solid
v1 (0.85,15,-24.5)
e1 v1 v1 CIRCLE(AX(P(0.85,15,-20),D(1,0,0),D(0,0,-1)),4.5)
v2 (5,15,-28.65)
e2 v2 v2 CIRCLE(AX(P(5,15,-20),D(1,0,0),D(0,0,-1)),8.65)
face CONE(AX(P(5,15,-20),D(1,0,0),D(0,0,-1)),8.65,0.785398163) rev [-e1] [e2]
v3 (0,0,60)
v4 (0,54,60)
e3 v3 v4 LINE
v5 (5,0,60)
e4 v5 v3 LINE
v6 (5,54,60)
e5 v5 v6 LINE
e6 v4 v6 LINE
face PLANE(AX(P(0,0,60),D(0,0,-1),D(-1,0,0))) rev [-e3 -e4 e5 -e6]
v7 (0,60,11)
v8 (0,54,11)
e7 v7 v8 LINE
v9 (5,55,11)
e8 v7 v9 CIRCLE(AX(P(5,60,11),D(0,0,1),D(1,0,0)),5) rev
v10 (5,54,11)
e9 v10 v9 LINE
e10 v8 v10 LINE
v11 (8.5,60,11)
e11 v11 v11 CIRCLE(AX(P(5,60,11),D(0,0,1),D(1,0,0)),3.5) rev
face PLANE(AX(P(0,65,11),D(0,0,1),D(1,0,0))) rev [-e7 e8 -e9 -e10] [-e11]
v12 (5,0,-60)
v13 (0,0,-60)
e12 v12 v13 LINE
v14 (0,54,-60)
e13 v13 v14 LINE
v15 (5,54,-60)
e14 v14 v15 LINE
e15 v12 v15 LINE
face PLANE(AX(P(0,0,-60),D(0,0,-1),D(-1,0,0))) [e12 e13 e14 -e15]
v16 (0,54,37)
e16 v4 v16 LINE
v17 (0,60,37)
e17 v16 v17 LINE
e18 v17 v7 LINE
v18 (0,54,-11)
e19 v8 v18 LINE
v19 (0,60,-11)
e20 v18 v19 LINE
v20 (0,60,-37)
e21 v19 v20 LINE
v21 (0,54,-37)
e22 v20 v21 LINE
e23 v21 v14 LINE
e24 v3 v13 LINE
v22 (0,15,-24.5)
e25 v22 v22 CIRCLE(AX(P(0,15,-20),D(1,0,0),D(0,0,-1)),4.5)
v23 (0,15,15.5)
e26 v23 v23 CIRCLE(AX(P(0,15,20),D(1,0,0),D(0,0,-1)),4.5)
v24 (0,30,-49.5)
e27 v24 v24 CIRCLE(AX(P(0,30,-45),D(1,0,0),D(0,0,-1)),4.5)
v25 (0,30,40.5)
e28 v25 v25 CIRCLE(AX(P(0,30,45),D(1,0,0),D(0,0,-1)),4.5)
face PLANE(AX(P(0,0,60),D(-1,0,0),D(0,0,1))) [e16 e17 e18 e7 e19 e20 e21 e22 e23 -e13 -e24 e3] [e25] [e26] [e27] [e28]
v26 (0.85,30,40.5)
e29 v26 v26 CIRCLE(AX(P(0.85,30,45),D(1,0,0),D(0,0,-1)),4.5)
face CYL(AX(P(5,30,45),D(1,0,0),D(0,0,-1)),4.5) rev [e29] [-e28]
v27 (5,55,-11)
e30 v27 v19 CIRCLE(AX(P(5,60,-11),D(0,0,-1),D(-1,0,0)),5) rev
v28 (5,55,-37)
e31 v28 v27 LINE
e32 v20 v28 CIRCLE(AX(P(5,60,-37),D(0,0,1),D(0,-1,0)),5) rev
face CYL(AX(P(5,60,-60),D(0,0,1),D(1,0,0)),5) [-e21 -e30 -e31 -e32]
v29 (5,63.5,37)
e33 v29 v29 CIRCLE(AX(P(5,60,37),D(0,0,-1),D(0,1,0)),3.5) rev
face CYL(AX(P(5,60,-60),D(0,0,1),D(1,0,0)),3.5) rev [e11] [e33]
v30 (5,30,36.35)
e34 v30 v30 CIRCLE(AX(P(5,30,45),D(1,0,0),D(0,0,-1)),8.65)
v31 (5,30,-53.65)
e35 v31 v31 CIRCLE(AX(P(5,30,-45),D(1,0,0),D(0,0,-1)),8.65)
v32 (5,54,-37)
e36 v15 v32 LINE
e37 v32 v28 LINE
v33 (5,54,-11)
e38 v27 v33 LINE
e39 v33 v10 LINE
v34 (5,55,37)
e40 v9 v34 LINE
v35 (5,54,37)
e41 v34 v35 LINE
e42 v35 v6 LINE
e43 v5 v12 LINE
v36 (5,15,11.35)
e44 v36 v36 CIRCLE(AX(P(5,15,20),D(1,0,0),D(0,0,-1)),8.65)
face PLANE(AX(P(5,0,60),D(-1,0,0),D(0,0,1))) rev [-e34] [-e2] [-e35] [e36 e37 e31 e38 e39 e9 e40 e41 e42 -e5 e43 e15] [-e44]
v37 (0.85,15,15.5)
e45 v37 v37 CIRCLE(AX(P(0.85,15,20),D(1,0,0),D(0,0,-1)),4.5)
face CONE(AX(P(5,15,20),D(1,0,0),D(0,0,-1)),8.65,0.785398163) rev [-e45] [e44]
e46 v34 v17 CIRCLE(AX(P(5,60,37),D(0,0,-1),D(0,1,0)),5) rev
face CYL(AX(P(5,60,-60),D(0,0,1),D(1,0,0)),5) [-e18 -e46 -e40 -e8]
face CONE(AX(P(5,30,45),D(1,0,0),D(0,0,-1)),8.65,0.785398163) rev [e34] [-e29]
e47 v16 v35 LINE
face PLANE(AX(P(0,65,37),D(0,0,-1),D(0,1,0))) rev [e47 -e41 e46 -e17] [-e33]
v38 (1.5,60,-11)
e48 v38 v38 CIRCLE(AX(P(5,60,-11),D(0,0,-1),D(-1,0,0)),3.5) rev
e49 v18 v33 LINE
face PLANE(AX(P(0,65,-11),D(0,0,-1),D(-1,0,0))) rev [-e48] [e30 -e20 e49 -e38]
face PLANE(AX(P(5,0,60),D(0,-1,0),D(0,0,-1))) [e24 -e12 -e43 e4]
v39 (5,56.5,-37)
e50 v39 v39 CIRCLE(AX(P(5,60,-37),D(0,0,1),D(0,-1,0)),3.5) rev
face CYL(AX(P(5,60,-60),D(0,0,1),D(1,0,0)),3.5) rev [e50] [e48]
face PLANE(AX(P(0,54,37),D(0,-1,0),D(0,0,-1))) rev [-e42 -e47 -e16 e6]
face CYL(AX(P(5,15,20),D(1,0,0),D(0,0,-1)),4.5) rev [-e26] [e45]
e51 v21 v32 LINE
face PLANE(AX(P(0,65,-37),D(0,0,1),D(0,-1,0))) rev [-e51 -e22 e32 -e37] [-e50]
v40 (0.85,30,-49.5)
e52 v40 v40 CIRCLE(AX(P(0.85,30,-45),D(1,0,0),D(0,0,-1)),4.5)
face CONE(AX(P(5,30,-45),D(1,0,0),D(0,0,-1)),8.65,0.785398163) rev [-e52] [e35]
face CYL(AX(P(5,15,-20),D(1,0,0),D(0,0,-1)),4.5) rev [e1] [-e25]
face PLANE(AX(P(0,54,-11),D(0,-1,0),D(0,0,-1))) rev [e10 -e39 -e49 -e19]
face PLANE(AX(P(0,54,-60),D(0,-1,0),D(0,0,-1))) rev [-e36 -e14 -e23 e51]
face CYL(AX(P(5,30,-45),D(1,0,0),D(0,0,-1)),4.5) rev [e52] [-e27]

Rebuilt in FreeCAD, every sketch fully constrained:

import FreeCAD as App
import Part
import Sketcher

V = App.Vector
Q = App.Units.Quantity


def add_polygon(sketch, points):
    """Adds a closed chain of lines whose ends are joined by coincident constraints."""
    first, n = sketch.GeometryCount, len(points)
    for a, b in zip(points, points[1:] + points[:1]):
        sketch.addGeometry(Part.LineSegment(App.Vector(*a, 0), App.Vector(*b, 0)), False)
    for i in range(n):
        sketch.addConstraint(Sketcher.Constraint("Coincident", first + i, 2, first + (i + 1) % n, 1))

doc = App.newDocument("Part")
body = doc.addObject("PartDesign::Body", "Body")

sketch1 = body.newObject("Sketcher::SketchObject", "Sketch")
sketch1.AttachmentSupport = (doc.getObject("XY_Plane"), [""])
sketch1.MapMode = "FlatFace"
add_polygon(sketch1, [(0, 60), (0, 0), (5, 0), (5, 60)])
sketch1.addConstraint([
    Sketcher.Constraint("Vertical", 0),
    Sketcher.Constraint("Horizontal", 1),
    Sketcher.Constraint("Vertical", 2),
    Sketcher.Constraint("Horizontal", 3),
    Sketcher.Constraint("Coincident", 0, 2, -1, 1),
    Sketcher.Constraint("DistanceX", 1, 1, 1, 2, Q("5 mm")),
    Sketcher.Constraint("DistanceY", 0, 2, 0, 1, Q("60 mm")),
])
pad1 = body.newObject("PartDesign::Pad", "Pad")
pad1.Profile = sketch1
pad1.Length = 120
pad1.Midplane = True

sketch2 = body.newObject("Sketcher::SketchObject", "Sketch001")
sketch2.AttachmentSupport = (doc.getObject("XY_Plane"), [""])
sketch2.MapMode = "FlatFace"
sketch2.AttachmentOffset = App.Placement(V(0, 0, 60), App.Rotation())
sketch2.addGeometry(Part.Circle(V(5, 60, 0), V(0, 0, 1), 5), False)
sketch2.addConstraint([
    Sketcher.Constraint("Diameter", 0, Q("10 mm")),
    Sketcher.Constraint("DistanceX", -1, 1, 0, 3, Q("5 mm")),
    Sketcher.Constraint("DistanceY", -1, 1, 0, 3, Q("60 mm")),
])

sketch3 = body.newObject("Sketcher::SketchObject", "Sketch002")
sketch3.AttachmentSupport = (doc.getObject("XZ_Plane"), [""])
sketch3.MapMode = "FlatFace"
sketch3.AttachmentOffset = App.Placement(V(0, 0, -60), App.Rotation())
sketch3.addGeometry(Part.LineSegment(V(5, 60, 0), V(5, -60, 0)), False)
sketch3.addConstraint([
    Sketcher.Constraint("Vertical", 0),
    Sketcher.Constraint("DistanceY", 0, 2, 0, 1, Q("120 mm")),
    Sketcher.Constraint("DistanceX", -1, 1, 0, 1, Q("5 mm")),
    Sketcher.Constraint("DistanceY", -1, 1, 0, 1, Q("60 mm")),
])
doc.recompute()

additivepipe = body.newObject("PartDesign::AdditivePipe", "AdditivePipe")
additivepipe.Profile = sketch2
additivepipe.Spine = (sketch3, ["Edge1"])

sketch4 = body.newObject("Sketcher::SketchObject", "Sketch003")
sketch4.AttachmentSupport = (doc.getObject("XY_Plane"), [""])
sketch4.MapMode = "FlatFace"
sketch4.AttachmentOffset = App.Placement(V(0, 0, 60), App.Rotation())
sketch4.addGeometry(Part.Circle(V(5, 60, 0), V(0, 0, 1), 3.5), False)
sketch4.addConstraint([
    Sketcher.Constraint("Diameter", 0, Q("7 mm")),
    Sketcher.Constraint("DistanceX", -1, 1, 0, 3, Q("5 mm")),
    Sketcher.Constraint("DistanceY", -1, 1, 0, 3, Q("60 mm")),
])
pocket1 = body.newObject("PartDesign::Pocket", "Pocket")
pocket1.Profile = sketch4
pocket1.Type = "ThroughAll"

sketch5 = body.newObject("Sketcher::SketchObject", "Sketch004")
sketch5.AttachmentSupport = (doc.getObject("XZ_Plane"), [""])
sketch5.MapMode = "FlatFace"
sketch5.AttachmentOffset = App.Placement(V(0, 0, -30), App.Rotation())
add_polygon(sketch5, [(0, 45), (5, 45), (5, 36.4), (0.8, 40.5), (0, 40.5)])
sketch5.addGeometry(Part.LineSegment(V(5, 45, 0), V(0, 45, 0)), True)
sketch5.addConstraint([
    Sketcher.Constraint("Horizontal", 0),
    Sketcher.Constraint("Vertical", 1),
    Sketcher.Constraint("Horizontal", 3),
    Sketcher.Constraint("Vertical", 4),
    Sketcher.Constraint("Horizontal", 5),
    Sketcher.Constraint("Coincident", 5, 1, 0, 2),
    Sketcher.Constraint("PointOnObject", 3, 2, -2),
    Sketcher.Constraint("PointOnObject", 5, 2, -2),
    Sketcher.Constraint("DistanceX", 0, 1, 0, 2, Q("5 mm")),
    Sketcher.Constraint("Angle", 2, Q("135 deg")),
    Sketcher.Constraint("DistanceY", 4, 1, 4, 2, Q("4.5 mm")),
    Sketcher.Constraint("DistanceY", -1, 1, 0, 2, Q("45 mm")),
    Sketcher.Constraint("DistanceX", 3, 2, 3, 1, Q("0.85 mm")),
])
groove = body.newObject("PartDesign::Groove", "Groove")
groove.Profile = sketch5
groove.ReferenceAxis = (sketch5, ["Axis0"])
groove.Angle = 360
doc.recompute()

datumline = body.newObject("PartDesign::Line", "DatumLine")
datumline.Placement = App.Placement(V(0, 0, 0), App.Rotation(V(0, 0, 1), V(0, -0.514495755, -0.857492926)))
linearpattern = body.newObject("PartDesign::LinearPattern", "LinearPattern")
linearpattern.Originals = [groove]
linearpattern.Direction = (datumline, [""])
linearpattern.Mode = "offset"
linearpattern.Offset = 29.154759
linearpattern.Occurrences = 2
body.Tip = linearpattern
doc.recompute()

mirrored = body.newObject("PartDesign::Mirrored", "Mirrored")
mirrored.Originals = [groove]
mirrored.MirrorPlane = (doc.getObject("XY_Plane"), [""])
body.Tip = mirrored

sketch6 = body.newObject("Sketcher::SketchObject", "Sketch005")
sketch6.AttachmentSupport = (doc.getObject("XZ_Plane"), [""])
sketch6.MapMode = "FlatFace"
sketch6.AttachmentOffset = App.Placement(V(0, 0, -15), App.Rotation())
add_polygon(sketch6, [(5, -20), (0, -20), (0, -15.5), (0.8, -15.5), (5, -11.3)])
sketch6.addGeometry(Part.LineSegment(V(0, -20, 0), V(5, -20, 0)), True)
sketch6.addConstraint([
    Sketcher.Constraint("Horizontal", 0),
    Sketcher.Constraint("Vertical", 1),
    Sketcher.Constraint("Horizontal", 2),
    Sketcher.Constraint("Vertical", 4),
    Sketcher.Constraint("Horizontal", 5),
    Sketcher.Constraint("Coincident", 5, 1, 0, 2),
    Sketcher.Constraint("PointOnObject", 0, 2, -2),
    Sketcher.Constraint("Vertical", 3, 2, 5, 2),
    Sketcher.Constraint("DistanceX", 0, 2, 0, 1, Q("5 mm")),
    Sketcher.Constraint("Angle", 3, Q("45 deg")),
    Sketcher.Constraint("DistanceY", 1, 1, 1, 2, Q("4.5 mm")),
    Sketcher.Constraint("DistanceY", 0, 2, -1, 1, Q("20 mm")),
    Sketcher.Constraint("DistanceX", 2, 1, 2, 2, Q("0.85 mm")),
])
groove2 = body.newObject("PartDesign::Groove", "Groove001")
groove2.Profile = sketch6
groove2.ReferenceAxis = (sketch6, ["Axis0"])
groove2.Angle = 360

sketch7 = body.newObject("Sketcher::SketchObject", "Sketch006")
sketch7.AttachmentSupport = (doc.getObject("YZ_Plane"), [""])
sketch7.MapMode = "FlatFace"
sketch7.AttachmentOffset = App.Placement(V(0, 0, 5), App.Rotation())
add_polygon(sketch7, [(65, -37), (54, -37), (54, -60), (65, -60)])
add_polygon(sketch7, [(65, 60), (54, 60), (54, 37), (65, 37)])
add_polygon(sketch7, [(65, 11), (54, 11), (54, -11), (65, -11)])
sketch7.addConstraint([
    Sketcher.Constraint("Horizontal", 0),
    Sketcher.Constraint("Vertical", 1),
    Sketcher.Constraint("Horizontal", 2),
    Sketcher.Constraint("Vertical", 3),
    Sketcher.Constraint("Horizontal", 4),
    Sketcher.Constraint("Vertical", 5),
    Sketcher.Constraint("Horizontal", 6),
    Sketcher.Constraint("Vertical", 7),
    Sketcher.Constraint("Horizontal", 8),
    Sketcher.Constraint("Vertical", 9),
    Sketcher.Constraint("Horizontal", 10),
    Sketcher.Constraint("Vertical", 11),
    Sketcher.Constraint("Symmetric", 1, 2, 4, 2, -1),
    Sketcher.Constraint("Symmetric", 3, 2, 6, 2, -1),
    Sketcher.Constraint("Vertical", 5, 2, 8, 2),
    Sketcher.Constraint("Vertical", 7, 2, 10, 2),
    Sketcher.Constraint("DistanceX", 0, 2, 0, 1, Q("11 mm")),
    Sketcher.Constraint("DistanceY", 1, 2, 1, 1, Q("23 mm")),
    Sketcher.Constraint("DistanceY", 9, 2, 9, 1, Q("22 mm")),
    Sketcher.Constraint("DistanceX", -1, 1, 0, 2, Q("54 mm")),
    Sketcher.Constraint("DistanceY", 0, 2, -1, 1, Q("37 mm")),
    Sketcher.Constraint("DistanceY", -1, 1, 8, 2, Q("11 mm")),
])
pocket2 = body.newObject("PartDesign::Pocket", "Pocket001")
pocket2.Profile = sketch7
pocket2.Type = "ThroughAll"
pocket2.Midplane = True

doc.recompute()
